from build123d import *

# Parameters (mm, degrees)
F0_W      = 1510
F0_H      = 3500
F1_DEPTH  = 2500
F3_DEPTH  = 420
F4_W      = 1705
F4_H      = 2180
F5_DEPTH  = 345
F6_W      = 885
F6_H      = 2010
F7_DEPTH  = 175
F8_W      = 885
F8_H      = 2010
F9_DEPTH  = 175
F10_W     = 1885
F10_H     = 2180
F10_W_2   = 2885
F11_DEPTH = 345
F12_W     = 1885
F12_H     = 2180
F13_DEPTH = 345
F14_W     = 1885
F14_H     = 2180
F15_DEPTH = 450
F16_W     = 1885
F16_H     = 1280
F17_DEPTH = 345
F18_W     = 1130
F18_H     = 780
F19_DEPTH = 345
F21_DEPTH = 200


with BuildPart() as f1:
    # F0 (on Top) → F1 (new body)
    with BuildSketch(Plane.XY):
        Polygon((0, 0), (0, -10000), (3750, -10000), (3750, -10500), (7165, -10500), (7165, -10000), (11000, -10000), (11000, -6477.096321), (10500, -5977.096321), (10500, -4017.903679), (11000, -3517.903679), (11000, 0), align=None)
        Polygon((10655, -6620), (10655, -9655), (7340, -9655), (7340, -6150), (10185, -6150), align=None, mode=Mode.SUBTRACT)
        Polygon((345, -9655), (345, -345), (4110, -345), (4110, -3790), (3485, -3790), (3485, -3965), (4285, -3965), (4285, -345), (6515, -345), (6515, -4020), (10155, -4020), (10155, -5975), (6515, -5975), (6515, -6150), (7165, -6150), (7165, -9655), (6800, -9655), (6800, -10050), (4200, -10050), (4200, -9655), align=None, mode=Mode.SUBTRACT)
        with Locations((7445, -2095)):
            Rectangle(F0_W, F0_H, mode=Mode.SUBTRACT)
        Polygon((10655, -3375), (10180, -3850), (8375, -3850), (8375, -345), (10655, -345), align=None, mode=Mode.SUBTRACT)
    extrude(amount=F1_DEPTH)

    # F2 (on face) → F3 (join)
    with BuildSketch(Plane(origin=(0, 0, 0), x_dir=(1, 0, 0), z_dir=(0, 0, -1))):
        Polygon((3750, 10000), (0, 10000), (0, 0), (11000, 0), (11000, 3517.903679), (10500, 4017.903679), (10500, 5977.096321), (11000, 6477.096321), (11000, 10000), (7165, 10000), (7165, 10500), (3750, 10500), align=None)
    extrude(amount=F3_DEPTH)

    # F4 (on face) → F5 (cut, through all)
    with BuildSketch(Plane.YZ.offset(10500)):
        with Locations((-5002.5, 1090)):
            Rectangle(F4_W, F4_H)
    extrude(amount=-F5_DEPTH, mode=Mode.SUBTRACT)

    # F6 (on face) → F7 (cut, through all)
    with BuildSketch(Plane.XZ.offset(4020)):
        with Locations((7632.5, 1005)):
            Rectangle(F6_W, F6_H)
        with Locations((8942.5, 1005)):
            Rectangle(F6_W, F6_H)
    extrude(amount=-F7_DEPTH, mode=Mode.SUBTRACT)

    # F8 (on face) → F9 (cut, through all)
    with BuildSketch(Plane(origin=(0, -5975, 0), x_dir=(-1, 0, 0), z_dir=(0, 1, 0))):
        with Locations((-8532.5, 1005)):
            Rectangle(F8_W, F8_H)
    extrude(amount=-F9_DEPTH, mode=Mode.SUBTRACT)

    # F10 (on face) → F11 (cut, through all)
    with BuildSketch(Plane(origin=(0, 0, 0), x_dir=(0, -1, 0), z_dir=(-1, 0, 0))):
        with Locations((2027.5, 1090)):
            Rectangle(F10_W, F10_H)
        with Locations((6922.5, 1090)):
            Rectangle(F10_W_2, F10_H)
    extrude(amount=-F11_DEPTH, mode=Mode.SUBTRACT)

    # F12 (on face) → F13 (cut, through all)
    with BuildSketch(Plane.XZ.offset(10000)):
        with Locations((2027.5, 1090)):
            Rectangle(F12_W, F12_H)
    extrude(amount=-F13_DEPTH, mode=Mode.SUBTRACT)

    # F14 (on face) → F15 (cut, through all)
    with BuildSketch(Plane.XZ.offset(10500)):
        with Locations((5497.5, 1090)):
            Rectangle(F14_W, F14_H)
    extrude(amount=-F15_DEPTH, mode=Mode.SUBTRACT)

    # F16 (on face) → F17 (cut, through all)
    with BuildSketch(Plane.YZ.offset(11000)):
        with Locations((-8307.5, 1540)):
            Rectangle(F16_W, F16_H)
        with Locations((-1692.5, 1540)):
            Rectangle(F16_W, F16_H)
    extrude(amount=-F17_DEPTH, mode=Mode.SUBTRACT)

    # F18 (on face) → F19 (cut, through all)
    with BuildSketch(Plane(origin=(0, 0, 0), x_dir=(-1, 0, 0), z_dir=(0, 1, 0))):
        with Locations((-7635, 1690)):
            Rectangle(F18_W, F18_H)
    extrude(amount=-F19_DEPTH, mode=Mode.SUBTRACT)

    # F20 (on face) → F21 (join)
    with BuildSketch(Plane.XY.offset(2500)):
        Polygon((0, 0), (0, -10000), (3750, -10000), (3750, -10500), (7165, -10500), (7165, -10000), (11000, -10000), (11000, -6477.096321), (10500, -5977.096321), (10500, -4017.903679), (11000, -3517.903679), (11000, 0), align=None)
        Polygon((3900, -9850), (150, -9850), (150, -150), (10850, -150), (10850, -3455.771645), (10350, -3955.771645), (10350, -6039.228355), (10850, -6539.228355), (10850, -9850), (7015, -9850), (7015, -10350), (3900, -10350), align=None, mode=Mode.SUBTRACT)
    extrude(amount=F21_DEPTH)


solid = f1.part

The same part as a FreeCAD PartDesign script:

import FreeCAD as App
import Part
import Sketcher

V = App.Vector
Q = App.Units.Quantity


def add_polygon(sketch, points):
    """Adds a closed chain of lines whose ends are joined by coincident constraints."""
    first, n = sketch.GeometryCount, len(points)
    for a, b in zip(points, points[1:] + points[:1]):
        sketch.addGeometry(Part.LineSegment(App.Vector(*a, 0), App.Vector(*b, 0)), False)
    for i in range(n):
        sketch.addConstraint(Sketcher.Constraint("Coincident", first + i, 2, first + (i + 1) % n, 1))

doc = App.newDocument("Part")
body = doc.addObject("PartDesign::Body", "Body")

sketch1 = body.newObject("Sketcher::SketchObject", "Sketch")
sketch1.AttachmentSupport = (doc.getObject("XY_Plane"), [""])
sketch1.MapMode = "FlatFace"
add_polygon(sketch1, [(0, 0), (0, -10000), (3750, -10000), (3750, -10500), (7165, -10500), (7165, -10000), (11000, -10000), (11000, -6477), (10500, -5977), (10500, -4018), (11000, -3518), (11000, 0)])
add_polygon(sketch1, [(10185, -6150), (10655, -6620), (10655, -9655), (7340, -9655), (7340, -6150)])
add_polygon(sketch1, [(4200, -9655), (345, -9655), (345, -345), (4110, -345), (4110, -3790), (3485, -3790), (3485, -3965), (4285, -3965), (4285, -345), (6515, -345), (6515, -4020), (10155, -4020), (10155, -5975), (6515, -5975), (6515, -6150), (7165, -6150), (7165, -9655), (6800, -9655), (6800, -10050), (4200, -10050)])
add_polygon(sketch1, [(8200, -3845), (6690, -3845), (6690, -345), (8200, -345)])
add_polygon(sketch1, [(10655, -345), (10655, -3375), (10180, -3850), (8375, -3850), (8375, -345)])
sketch1.addConstraint([
    Sketcher.Constraint("Vertical", 0),
    Sketcher.Constraint("Horizontal", 1),
    Sketcher.Constraint("Vertical", 2),
    Sketcher.Constraint("Horizontal", 3),
    Sketcher.Constraint("Vertical", 4),
    Sketcher.Constraint("Horizontal", 5),
    Sketcher.Constraint("Vertical", 6),
    Sketcher.Constraint("Vertical", 8),
    Sketcher.Constraint("Vertical", 10),
    Sketcher.Constraint("Horizontal", 11),
    Sketcher.Constraint("Vertical", 13),
    Sketcher.Constraint("Horizontal", 14),
    Sketcher.Constraint("Vertical", 15),
    Sketcher.Constraint("Horizontal", 16),
    Sketcher.Constraint("Horizontal", 17),
    Sketcher.Constraint("Vertical", 18),
    Sketcher.Constraint("Horizontal", 19),
    Sketcher.Constraint("Vertical", 20),
    Sketcher.Constraint("Horizontal", 21),
    Sketcher.Constraint("Vertical", 22),
    Sketcher.Constraint("Horizontal", 23),
    Sketcher.Constraint("Vertical", 24),
    Sketcher.Constraint("Horizontal", 25),
    Sketcher.Constraint("Vertical", 26),
    Sketcher.Constraint("Horizontal", 27),
    Sketcher.Constraint("Vertical", 28),
    Sketcher.Constraint("Horizontal", 29),
    Sketcher.Constraint("Vertical", 30),
    Sketcher.Constraint("Horizontal", 31),
    Sketcher.Constraint("Vertical", 32),
    Sketcher.Constraint("Horizontal", 33),
    Sketcher.Constraint("Vertical", 34),
    Sketcher.Constraint("Horizontal", 35),
    Sketcher.Constraint("Vertical", 36),
    Sketcher.Constraint("Horizontal", 37),
    Sketcher.Constraint("Vertical", 38),
    Sketcher.Constraint("Horizontal", 39),
    Sketcher.Constraint("Vertical", 40),
    Sketcher.Constraint("Vertical", 41),
    Sketcher.Constraint("Horizontal", 43),
    Sketcher.Constraint("Vertical", 44),
    Sketcher.Constraint("Horizontal", 45),
    Sketcher.Constraint("Coincident", 11, 2, -1, 1),
    Sketcher.Constraint("Perpendicular", 7, 9),
    Sketcher.Constraint("Perpendicular", 9, 12),
    Sketcher.Constraint("Perpendicular", 12, 42),
    Sketcher.Constraint("Horizontal", 1, 2, 4, 2),
    Sketcher.Constraint("Horizontal", 14, 2, 17, 2),
    Sketcher.Constraint("Horizontal", 19, 2, 24, 2),
    Sketcher.Constraint("Horizontal", 16, 2, 30, 2),
    Sketcher.Constraint("Horizontal", 17, 2, 32, 2),
    Sketcher.Constraint("Horizontal", 25, 2, 38, 2),
    Sketcher.Constraint("Horizontal", 39, 2, 44, 2),
    Sketcher.Constraint("Vertical", 6, 2, 9, 2),
    Sketcher.Constraint("Vertical", 26, 2, 29, 2),
    Sketcher.Constraint("Vertical", 4, 2, 31, 2),
    Sketcher.Constraint("Vertical", 13, 2, 41, 2),
    Sketcher.Constraint("Equal", 22, 30),
    Sketcher.Constraint("Equal", 32, 44),
    Sketcher.Constraint("Equal", 7, 9),
    Sketcher.Constraint("DistanceX", 1, 1, 1, 2, Q("3750 mm")),
    Sketcher.Constraint("DistanceX", 3, 1, 3, 2, Q("3415 mm")),
    Sketcher.Constraint("DistanceX", 5, 1, 5, 2, Q("3835 mm")),
    Sketcher.Constraint("DistanceX", 14, 2, 14, 1, Q("3315 mm")),
    Sketcher.Constraint("DistanceX", 16, 1, 16, 2, Q("2845 mm")),
    Sketcher.Constraint("DistanceX", 17, 2, 17, 1, Q("3855 mm")),
    Sketcher.Constraint("DistanceX", 19, 1, 19, 2, Q("3765 mm")),
    Sketcher.Constraint("DistanceX", 21, 2, 21, 1, Q("625 mm")),
    Sketcher.Constraint("DistanceX", 23, 1, 23, 2, Q("800 mm")),
    Sketcher.Constraint("DistanceX", 25, 1, 25, 2, Q("2230 mm")),
    Sketcher.Constraint("DistanceX", 27, 1, 27, 2, Q("3640 mm")),
    Sketcher.Constraint("DistanceX", 31, 1, 31, 2, Q("650 mm")),
    Sketcher.Constraint("DistanceX", 33, 2, 33, 1, Q("365 mm")),
    Sketcher.Constraint("DistanceX", 37, 2, 37, 1, Q("1510 mm")),
    Sketcher.Constraint("DistanceX", 43, 2, 43, 1, Q("1805 mm")),
    Sketcher.Constraint("DistanceX", 45, 1, 45, 2, Q("2280 mm")),
    Sketcher.Constraint("DistanceY", 0, 2, 0, 1, Q("10000 mm")),
    Sketcher.Constraint("DistanceY", 2, 2, 2, 1, Q("500 mm")),
    Sketcher.Constraint("DistanceY", 13, 2, 13, 1, Q("3035 mm")),
    Sketcher.Constraint("DistanceY", 18, 1, 18, 2, Q("9310 mm")),
    Sketcher.Constraint("DistanceY", 20, 2, 20, 1, Q("3445 mm")),
    Sketcher.Constraint("DistanceY", 22, 2, 22, 1, Q("175 mm")),
    Sketcher.Constraint("DistanceY", 26, 2, 26, 1, Q("3675 mm")),
    Sketcher.Constraint("DistanceY", 34, 2, 34, 1, Q("395 mm")),
    Sketcher.Constraint("DistanceY", 38, 1, 38, 2, Q("3500 mm")),
    Sketcher.Constraint("DistanceX", -1, 1, 7, 2, Q("10500 mm")),
    Sketcher.Constraint("DistanceX", -1, 1, 12, 2, Q("10655 mm")),
    Sketcher.Constraint("DistanceY", 12, 2, -1, 1, Q("6620 mm")),
    Sketcher.Constraint("DistanceX", -1, 1, 37, 2, Q("6690 mm")),
    Sketcher.Constraint("DistanceY", 6, 1, 6, 2, Q("3522.903679 mm")),
    Sketcher.Constraint("DistanceY", 8, 1, 8, 2, Q("1959.192642 mm")),
])
pad1 = body.newObject("PartDesign::Pad", "Pad")
pad1.Profile = sketch1
pad1.Length = 2500

sketch2 = body.newObject("Sketcher::SketchObject", "Sketch001")
sketch2.AttachmentSupport = (doc.getObject("XY_Plane"), [""])
sketch2.MapMode = "FlatFace"
add_polygon(sketch2, [(3750, -10000), (0, -10000), (0, 0), (11000, 0), (11000, -3518), (10500, -4018), (10500, -5977), (11000, -6477), (11000, -10000), (7165, -10000), (7165, -10500), (3750, -10500)])
sketch2.addConstraint([
    Sketcher.Constraint("Horizontal", 0),
    Sketcher.Constraint("Vertical", 1),
    Sketcher.Constraint("Horizontal", 2),
    Sketcher.Constraint("Vertical", 3),
    Sketcher.Constraint("Vertical", 5),
    Sketcher.Constraint("Vertical", 7),
    Sketcher.Constraint("Horizontal", 8),
    Sketcher.Constraint("Vertical", 9),
    Sketcher.Constraint("Horizontal", 10),
    Sketcher.Constraint("Vertical", 11),
    Sketcher.Constraint("Coincident", 1, 2, -1, 1),
    Sketcher.Constraint("Perpendicular", 4, 6),
    Sketcher.Constraint("Horizontal", 0, 2, 7, 2),
    Sketcher.Constraint("Vertical", 3, 2, 6, 2),
    Sketcher.Constraint("Equal", 4, 6),
    Sketcher.Constraint("DistanceX", 0, 2, 0, 1, Q("3750 mm")),
    Sketcher.Constraint("DistanceX", 2, 1, 2, 2, Q("11000 mm")),
    Sketcher.Constraint("DistanceX", 8, 2, 8, 1, Q("3835 mm")),
    Sketcher.Constraint("DistanceY", 1, 1, 1, 2, Q("10000 mm")),
    Sketcher.Constraint("DistanceY", 9, 2, 9, 1, Q("500 mm")),
    Sketcher.Constraint("DistanceX", -1, 1, 4, 2, Q("10500 mm")),
    Sketcher.Constraint("DistanceY", 3, 2, 3, 1, Q("3517.903679 mm")),
    Sketcher.Constraint("DistanceY", 5, 2, 5, 1, Q("1959.192642 mm")),
])
pad2 = body.newObject("PartDesign::Pad", "Pad001")
pad2.Profile = sketch2
pad2.Length = 420
pad2.Reversed = True

sketch3 = body.newObject("Sketcher::SketchObject", "Sketch002")
sketch3.AttachmentSupport = (doc.getObject("YZ_Plane"), [""])
sketch3.MapMode = "FlatFace"
sketch3.AttachmentOffset = App.Placement(V(0, 0, 10500), App.Rotation())
add_polygon(sketch3, [(-5855, 2180), (-5855, 0), (-4150, 0), (-4150, 2180)])
sketch3.addConstraint([
    Sketcher.Constraint("Vertical", 0),
    Sketcher.Constraint("Horizontal", 1),
    Sketcher.Constraint("Vertical", 2),
    Sketcher.Constraint("Horizontal", 3),
    Sketcher.Constraint("PointOnObject", 0, 2, -1),
    Sketcher.Constraint("DistanceX", 1, 1, 1, 2, Q("1705 mm")),
    Sketcher.Constraint("DistanceY", 0, 2, 0, 1, Q("2180 mm")),
    Sketcher.Constraint("DistanceX", 0, 2, -1, 1, Q("5855 mm")),
])
pocket1 = body.newObject("PartDesign::Pocket", "Pocket")
pocket1.Profile = sketch3
pocket1.Length = 345

sketch4 = body.newObject("Sketcher::SketchObject", "Sketch003")
sketch4.AttachmentSupport = (doc.getObject("XZ_Plane"), [""])
sketch4.MapMode = "FlatFace"
sketch4.AttachmentOffset = App.Placement(V(0, 0, 4020), App.Rotation())
add_polygon(sketch4, [(7190, 2010), (7190, 0), (8075, 0), (8075, 2010)])
add_polygon(sketch4, [(8500, 2010), (8500, 0), (9385, 0), (9385, 2010)])
sketch4.addConstraint([
    Sketcher.Constraint("Vertical", 0),
    Sketcher.Constraint("Horizontal", 1),
    Sketcher.Constraint("Vertical", 2),
    Sketcher.Constraint("Horizontal", 3),
    Sketcher.Constraint("Vertical", 4),
    Sketcher.Constraint("Horizontal", 5),
    Sketcher.Constraint("Vertical", 6),
    Sketcher.Constraint("Horizontal", 7),
    Sketcher.Constraint("PointOnObject", 0, 2, -1),
    Sketcher.Constraint("PointOnObject", 4, 2, -1),
    Sketcher.Constraint("Horizontal", 3, 2, 6, 2),
    Sketcher.Constraint("Equal", 3, 5),
    Sketcher.Constraint("DistanceX", 1, 1, 1, 2, Q("885 mm")),
    Sketcher.Constraint("DistanceY", 0, 2, 0, 1, Q("2010 mm")),
    Sketcher.Constraint("DistanceX", -1, 1, 0, 2, Q("7190 mm")),
    Sketcher.Constraint("DistanceX", -1, 1, 4, 2, Q("8500 mm")),
])
pocket2 = body.newObject("PartDesign::Pocket", "Pocket001")
pocket2.Profile = sketch4
pocket2.Length = 175

sketch5 = body.newObject("Sketcher::SketchObject", "Sketch004")
sketch5.AttachmentSupport = (doc.getObject("XZ_Plane"), [""])
sketch5.MapMode = "FlatFace"
sketch5.AttachmentOffset = App.Placement(V(0, 0, 5975), App.Rotation())
add_polygon(sketch5, [(8975, 2010), (8975, 0), (8090, 0), (8090, 2010)])
sketch5.addConstraint([
    Sketcher.Constraint("Vertical", 0),
    Sketcher.Constraint("Horizontal", 1),
    Sketcher.Constraint("Vertical", 2),
    Sketcher.Constraint("Horizontal", 3),
    Sketcher.Constraint("PointOnObject", 0, 2, -1),
    Sketcher.Constraint("DistanceX", 1, 2, 1, 1, Q("885 mm")),
    Sketcher.Constraint("DistanceY", 0, 2, 0, 1, Q("2010 mm")),
    Sketcher.Constraint("DistanceX", -1, 1, 0, 2, Q("8975 mm")),
])
pocket3 = body.newObject("PartDesign::Pocket", "Pocket002")
pocket3.Profile = sketch5
pocket3.Length = 175
pocket3.Reversed = True

sketch6 = body.newObject("Sketcher::SketchObject", "Sketch005")
sketch6.AttachmentSupport = (doc.getObject("YZ_Plane"), [""])
sketch6.MapMode = "FlatFace"
add_polygon(sketch6, [(-1085, 2180), (-1085, 0), (-2970, 0), (-2970, 2180)])
add_polygon(sketch6, [(-5480, 2180), (-5480, 0), (-8365, 0), (-8365, 2180)])
sketch6.addConstraint([
    Sketcher.Constraint("Vertical", 0),
    Sketcher.Constraint("Horizontal", 1),
    Sketcher.Constraint("Vertical", 2),
    Sketcher.Constraint("Horizontal", 3),
    Sketcher.Constraint("Vertical", 4),
    Sketcher.Constraint("Horizontal", 5),
    Sketcher.Constraint("Vertical", 6),
    Sketcher.Constraint("Horizontal", 7),
    Sketcher.Constraint("PointOnObject", 0, 2, -1),
    Sketcher.Constraint("PointOnObject", 4, 2, -1),
    Sketcher.Constraint("Horizontal", 3, 2, 6, 2),
    Sketcher.Constraint("DistanceX", 1, 2, 1, 1, Q("1885 mm")),
    Sketcher.Constraint("DistanceX", 5, 2, 5, 1, Q("2885 mm")),
    Sketcher.Constraint("DistanceY", 0, 2, 0, 1, Q("2180 mm")),
    Sketcher.Constraint("DistanceX", 0, 2, -1, 1, Q("1085 mm")),
    Sketcher.Constraint("DistanceX", 4, 2, -1, 1, Q("5480 mm")),
])
pocket4 = body.newObject("PartDesign::Pocket", "Pocket003")
pocket4.Profile = sketch6
pocket4.Length = 345
pocket4.Reversed = True

sketch7 = body.newObject("Sketcher::SketchObject", "Sketch006")
sketch7.AttachmentSupport = (doc.getObject("XZ_Plane"), [""])
sketch7.MapMode = "FlatFace"
sketch7.AttachmentOffset = App.Placement(V(0, 0, 10000), App.Rotation())
add_polygon(sketch7, [(1085, 2180), (1085, 0), (2970, 0), (2970, 2180)])
sketch7.addConstraint([
    Sketcher.Constraint("Vertical", 0),
    Sketcher.Constraint("Horizontal", 1),
    Sketcher.Constraint("Vertical", 2),
    Sketcher.Constraint("Horizontal", 3),
    Sketcher.Constraint("PointOnObject", 0, 2, -1),
    Sketcher.Constraint("DistanceX", 1, 1, 1, 2, Q("1885 mm")),
    Sketcher.Constraint("DistanceY", 0, 2, 0, 1, Q("2180 mm")),
    Sketcher.Constraint("DistanceX", -1, 1, 0, 2, Q("1085 mm")),
])
pocket5 = body.newObject("PartDesign::Pocket", "Pocket004")
pocket5.Profile = sketch7
pocket5.Length = 345

sketch8 = body.newObject("Sketcher::SketchObject", "Sketch007")
sketch8.AttachmentSupport = (doc.getObject("XZ_Plane"), [""])
sketch8.MapMode = "FlatFace"
sketch8.AttachmentOffset = App.Placement(V(0, 0, 10500), App.Rotation())
add_polygon(sketch8, [(4555, 2180), (4555, 0), (6440, 0), (6440, 2180)])
sketch8.addConstraint([
    Sketcher.Constraint("Vertical", 0),
    Sketcher.Constraint("Horizontal", 1),
    Sketcher.Constraint("Vertical", 2),
    Sketcher.Constraint("Horizontal", 3),
    Sketcher.Constraint("PointOnObject", 0, 2, -1),
    Sketcher.Constraint("DistanceX", 1, 1, 1, 2, Q("1885 mm")),
    Sketcher.Constraint("DistanceY", 0, 2, 0, 1, Q("2180 mm")),
    Sketcher.Constraint("DistanceX", -1, 1, 0, 2, Q("4555 mm")),
])
pocket6 = body.newObject("PartDesign::Pocket", "Pocket005")
pocket6.Profile = sketch8
pocket6.Length = 450

sketch9 = body.newObject("Sketcher::SketchObject", "Sketch008")
sketch9.AttachmentSupport = (doc.getObject("YZ_Plane"), [""])
sketch9.MapMode = "FlatFace"
sketch9.AttachmentOffset = App.Placement(V(0, 0, 11000), App.Rotation())
add_polygon(sketch9, [(-9250, 2180), (-9250, 900), (-7365, 900), (-7365, 2180)])
add_polygon(sketch9, [(-2635, 2180), (-2635, 900), (-750, 900), (-750, 2180)])
sketch9.addConstraint([
    Sketcher.Constraint("Vertical", 0),
    Sketcher.Constraint("Horizontal", 1),
    Sketcher.Constraint("Vertical", 2),
    Sketcher.Constraint("Horizontal", 3),
    Sketcher.Constraint("Vertical", 4),
    Sketcher.Constraint("Horizontal", 5),
    Sketcher.Constraint("Vertical", 6),
    Sketcher.Constraint("Horizontal", 7),
    Sketcher.Constraint("Horizontal", 1, 2, 4, 2),
    Sketcher.Constraint("Horizontal", 3, 2, 6, 2),
    Sketcher.Constraint("Equal", 3, 5),
    Sketcher.Constraint("DistanceX", 1, 1, 1, 2, Q("1885 mm")),
    Sketcher.Constraint("DistanceY", 0, 2, 0, 1, Q("1280 mm")),
    Sketcher.Constraint("DistanceX", 0, 2, -1, 1, Q("9250 mm")),
    Sketcher.Constraint("DistanceY", -1, 1, 0, 2, Q("900 mm")),
    Sketcher.Constraint("DistanceX", 4, 2, -1, 1, Q("2635 mm")),
])
pocket7 = body.newObject("PartDesign::Pocket", "Pocket006")
pocket7.Profile = sketch9
pocket7.Length = 345

sketch10 = body.newObject("Sketcher::SketchObject", "Sketch009")
sketch10.AttachmentSupport = (doc.getObject("XZ_Plane"), [""])
sketch10.MapMode = "FlatFace"
add_polygon(sketch10, [(8200, 2080), (8200, 1300), (7070, 1300), (7070, 2080)])
sketch10.addConstraint([
    Sketcher.Constraint("Vertical", 0),
    Sketcher.Constraint("Horizontal", 1),
    Sketcher.Constraint("Vertical", 2),
    Sketcher.Constraint("Horizontal", 3),
    Sketcher.Constraint("DistanceX", 1, 2, 1, 1, Q("1130 mm")),
    Sketcher.Constraint("DistanceY", 0, 2, 0, 1, Q("780 mm")),
    Sketcher.Constraint("DistanceX", -1, 1, 0, 2, Q("8200 mm")),
    Sketcher.Constraint("DistanceY", -1, 1, 0, 2, Q("1300 mm")),
])
pocket8 = body.newObject("PartDesign::Pocket", "Pocket007")
pocket8.Profile = sketch10
pocket8.Length = 345
pocket8.Reversed = True

sketch11 = body.newObject("Sketcher::SketchObject", "Sketch010")
sketch11.AttachmentSupport = (doc.getObject("XY_Plane"), [""])
sketch11.MapMode = "FlatFace"
sketch11.AttachmentOffset = App.Placement(V(0, 0, 2500), App.Rotation())
add_polygon(sketch11, [(0, 0), (0, -10000), (3750, -10000), (3750, -10500), (7165, -10500), (7165, -10000), (11000, -10000), (11000, -6477), (10500, -5977), (10500, -4018), (11000, -3518), (11000, 0)])
add_polygon(sketch11, [(3900, -10350), (3900, -9850), (150, -9850), (150, -150), (10850, -150), (10850, -3456), (10350, -3956), (10350, -6039), (10850, -6539), (10850, -9850), (7015, -9850), (7015, -10350)])
sketch11.addConstraint([
    Sketcher.Constraint("Vertical", 0),
    Sketcher.Constraint("Horizontal", 1),
    Sketcher.Constraint("Vertical", 2),
    Sketcher.Constraint("Horizontal", 3),
    Sketcher.Constraint("Vertical", 4),
    Sketcher.Constraint("Horizontal", 5),
    Sketcher.Constraint("Vertical", 6),
    Sketcher.Constraint("Vertical", 8),
    Sketcher.Constraint("Vertical", 10),
    Sketcher.Constraint("Horizontal", 11),
    Sketcher.Constraint("Vertical", 12),
    Sketcher.Constraint("Horizontal", 13),
    Sketcher.Constraint("Vertical", 14),
    Sketcher.Constraint("Horizontal", 15),
    Sketcher.Constraint("Vertical", 16),
    Sketcher.Constraint("Vertical", 18),
    Sketcher.Constraint("Vertical", 20),
    Sketcher.Constraint("Horizontal", 21),
    Sketcher.Constraint("Vertical", 22),
    Sketcher.Constraint("Horizontal", 23),
    Sketcher.Constraint("Coincident", 11, 2, -1, 1),
    Sketcher.Constraint("Perpendicular", 7, 9),
    Sketcher.Constraint("Parallel", 9, 17),
    Sketcher.Constraint("Perpendicular", 17, 19),
    Sketcher.Constraint("Horizontal", 1, 2, 4, 2),
    Sketcher.Constraint("Horizontal", 13, 2, 20, 2),
    Sketcher.Constraint("Vertical", 6, 2, 9, 2),
    Sketcher.Constraint("Vertical", 16, 2, 19, 2),
    Sketcher.Constraint("Equal", 1, 13),
    Sketcher.Constraint("Equal", 5, 21),
    Sketcher.Constraint("Equal", 4, 12),
    Sketcher.Constraint("Equal", 7, 9),
    Sketcher.Constraint("Equal", 9, 17),
    Sketcher.Constraint("DistanceX", 1, 1, 1, 2, Q("3750 mm")),
    Sketcher.Constraint("DistanceX", 3, 1, 3, 2, Q("3415 mm")),
    Sketcher.Constraint("DistanceX", 5, 1, 5, 2, Q("3835 mm")),
    Sketcher.Constraint("DistanceX", 15, 1, 15, 2, Q("10700 mm")),
    Sketcher.Constraint("DistanceY", 0, 2, 0, 1, Q("10000 mm")),
    Sketcher.Constraint("DistanceY", 2, 2, 2, 1, Q("500 mm")),
    Sketcher.Constraint("DistanceY", 14, 1, 14, 2, Q("9700 mm")),
    Sketcher.Constraint("DistanceX", -1, 1, 7, 2, Q("10500 mm")),
    Sketcher.Constraint("DistanceX", -1, 1, 12, 2, Q("3900 mm")),
    Sketcher.Constraint("DistanceY", 12, 2, -1, 1, Q("9850 mm")),
    Sketcher.Constraint("DistanceY", 6, 1, 6, 2, Q("3522.903679 mm")),
    Sketcher.Constraint("DistanceY", 8, 1, 8, 2, Q("1959.192642 mm")),
    Sketcher.Constraint("DistanceY", 18, 2, 18, 1, Q("2083.45671 mm")),
    Sketcher.Constraint("DistanceY", 16, 2, 16, 1, Q("3305.771645 mm")),
])
pad3 = body.newObject("PartDesign::Pad", "Pad002")
pad3.Profile = sketch11
pad3.Length = 200

doc.recompute()
